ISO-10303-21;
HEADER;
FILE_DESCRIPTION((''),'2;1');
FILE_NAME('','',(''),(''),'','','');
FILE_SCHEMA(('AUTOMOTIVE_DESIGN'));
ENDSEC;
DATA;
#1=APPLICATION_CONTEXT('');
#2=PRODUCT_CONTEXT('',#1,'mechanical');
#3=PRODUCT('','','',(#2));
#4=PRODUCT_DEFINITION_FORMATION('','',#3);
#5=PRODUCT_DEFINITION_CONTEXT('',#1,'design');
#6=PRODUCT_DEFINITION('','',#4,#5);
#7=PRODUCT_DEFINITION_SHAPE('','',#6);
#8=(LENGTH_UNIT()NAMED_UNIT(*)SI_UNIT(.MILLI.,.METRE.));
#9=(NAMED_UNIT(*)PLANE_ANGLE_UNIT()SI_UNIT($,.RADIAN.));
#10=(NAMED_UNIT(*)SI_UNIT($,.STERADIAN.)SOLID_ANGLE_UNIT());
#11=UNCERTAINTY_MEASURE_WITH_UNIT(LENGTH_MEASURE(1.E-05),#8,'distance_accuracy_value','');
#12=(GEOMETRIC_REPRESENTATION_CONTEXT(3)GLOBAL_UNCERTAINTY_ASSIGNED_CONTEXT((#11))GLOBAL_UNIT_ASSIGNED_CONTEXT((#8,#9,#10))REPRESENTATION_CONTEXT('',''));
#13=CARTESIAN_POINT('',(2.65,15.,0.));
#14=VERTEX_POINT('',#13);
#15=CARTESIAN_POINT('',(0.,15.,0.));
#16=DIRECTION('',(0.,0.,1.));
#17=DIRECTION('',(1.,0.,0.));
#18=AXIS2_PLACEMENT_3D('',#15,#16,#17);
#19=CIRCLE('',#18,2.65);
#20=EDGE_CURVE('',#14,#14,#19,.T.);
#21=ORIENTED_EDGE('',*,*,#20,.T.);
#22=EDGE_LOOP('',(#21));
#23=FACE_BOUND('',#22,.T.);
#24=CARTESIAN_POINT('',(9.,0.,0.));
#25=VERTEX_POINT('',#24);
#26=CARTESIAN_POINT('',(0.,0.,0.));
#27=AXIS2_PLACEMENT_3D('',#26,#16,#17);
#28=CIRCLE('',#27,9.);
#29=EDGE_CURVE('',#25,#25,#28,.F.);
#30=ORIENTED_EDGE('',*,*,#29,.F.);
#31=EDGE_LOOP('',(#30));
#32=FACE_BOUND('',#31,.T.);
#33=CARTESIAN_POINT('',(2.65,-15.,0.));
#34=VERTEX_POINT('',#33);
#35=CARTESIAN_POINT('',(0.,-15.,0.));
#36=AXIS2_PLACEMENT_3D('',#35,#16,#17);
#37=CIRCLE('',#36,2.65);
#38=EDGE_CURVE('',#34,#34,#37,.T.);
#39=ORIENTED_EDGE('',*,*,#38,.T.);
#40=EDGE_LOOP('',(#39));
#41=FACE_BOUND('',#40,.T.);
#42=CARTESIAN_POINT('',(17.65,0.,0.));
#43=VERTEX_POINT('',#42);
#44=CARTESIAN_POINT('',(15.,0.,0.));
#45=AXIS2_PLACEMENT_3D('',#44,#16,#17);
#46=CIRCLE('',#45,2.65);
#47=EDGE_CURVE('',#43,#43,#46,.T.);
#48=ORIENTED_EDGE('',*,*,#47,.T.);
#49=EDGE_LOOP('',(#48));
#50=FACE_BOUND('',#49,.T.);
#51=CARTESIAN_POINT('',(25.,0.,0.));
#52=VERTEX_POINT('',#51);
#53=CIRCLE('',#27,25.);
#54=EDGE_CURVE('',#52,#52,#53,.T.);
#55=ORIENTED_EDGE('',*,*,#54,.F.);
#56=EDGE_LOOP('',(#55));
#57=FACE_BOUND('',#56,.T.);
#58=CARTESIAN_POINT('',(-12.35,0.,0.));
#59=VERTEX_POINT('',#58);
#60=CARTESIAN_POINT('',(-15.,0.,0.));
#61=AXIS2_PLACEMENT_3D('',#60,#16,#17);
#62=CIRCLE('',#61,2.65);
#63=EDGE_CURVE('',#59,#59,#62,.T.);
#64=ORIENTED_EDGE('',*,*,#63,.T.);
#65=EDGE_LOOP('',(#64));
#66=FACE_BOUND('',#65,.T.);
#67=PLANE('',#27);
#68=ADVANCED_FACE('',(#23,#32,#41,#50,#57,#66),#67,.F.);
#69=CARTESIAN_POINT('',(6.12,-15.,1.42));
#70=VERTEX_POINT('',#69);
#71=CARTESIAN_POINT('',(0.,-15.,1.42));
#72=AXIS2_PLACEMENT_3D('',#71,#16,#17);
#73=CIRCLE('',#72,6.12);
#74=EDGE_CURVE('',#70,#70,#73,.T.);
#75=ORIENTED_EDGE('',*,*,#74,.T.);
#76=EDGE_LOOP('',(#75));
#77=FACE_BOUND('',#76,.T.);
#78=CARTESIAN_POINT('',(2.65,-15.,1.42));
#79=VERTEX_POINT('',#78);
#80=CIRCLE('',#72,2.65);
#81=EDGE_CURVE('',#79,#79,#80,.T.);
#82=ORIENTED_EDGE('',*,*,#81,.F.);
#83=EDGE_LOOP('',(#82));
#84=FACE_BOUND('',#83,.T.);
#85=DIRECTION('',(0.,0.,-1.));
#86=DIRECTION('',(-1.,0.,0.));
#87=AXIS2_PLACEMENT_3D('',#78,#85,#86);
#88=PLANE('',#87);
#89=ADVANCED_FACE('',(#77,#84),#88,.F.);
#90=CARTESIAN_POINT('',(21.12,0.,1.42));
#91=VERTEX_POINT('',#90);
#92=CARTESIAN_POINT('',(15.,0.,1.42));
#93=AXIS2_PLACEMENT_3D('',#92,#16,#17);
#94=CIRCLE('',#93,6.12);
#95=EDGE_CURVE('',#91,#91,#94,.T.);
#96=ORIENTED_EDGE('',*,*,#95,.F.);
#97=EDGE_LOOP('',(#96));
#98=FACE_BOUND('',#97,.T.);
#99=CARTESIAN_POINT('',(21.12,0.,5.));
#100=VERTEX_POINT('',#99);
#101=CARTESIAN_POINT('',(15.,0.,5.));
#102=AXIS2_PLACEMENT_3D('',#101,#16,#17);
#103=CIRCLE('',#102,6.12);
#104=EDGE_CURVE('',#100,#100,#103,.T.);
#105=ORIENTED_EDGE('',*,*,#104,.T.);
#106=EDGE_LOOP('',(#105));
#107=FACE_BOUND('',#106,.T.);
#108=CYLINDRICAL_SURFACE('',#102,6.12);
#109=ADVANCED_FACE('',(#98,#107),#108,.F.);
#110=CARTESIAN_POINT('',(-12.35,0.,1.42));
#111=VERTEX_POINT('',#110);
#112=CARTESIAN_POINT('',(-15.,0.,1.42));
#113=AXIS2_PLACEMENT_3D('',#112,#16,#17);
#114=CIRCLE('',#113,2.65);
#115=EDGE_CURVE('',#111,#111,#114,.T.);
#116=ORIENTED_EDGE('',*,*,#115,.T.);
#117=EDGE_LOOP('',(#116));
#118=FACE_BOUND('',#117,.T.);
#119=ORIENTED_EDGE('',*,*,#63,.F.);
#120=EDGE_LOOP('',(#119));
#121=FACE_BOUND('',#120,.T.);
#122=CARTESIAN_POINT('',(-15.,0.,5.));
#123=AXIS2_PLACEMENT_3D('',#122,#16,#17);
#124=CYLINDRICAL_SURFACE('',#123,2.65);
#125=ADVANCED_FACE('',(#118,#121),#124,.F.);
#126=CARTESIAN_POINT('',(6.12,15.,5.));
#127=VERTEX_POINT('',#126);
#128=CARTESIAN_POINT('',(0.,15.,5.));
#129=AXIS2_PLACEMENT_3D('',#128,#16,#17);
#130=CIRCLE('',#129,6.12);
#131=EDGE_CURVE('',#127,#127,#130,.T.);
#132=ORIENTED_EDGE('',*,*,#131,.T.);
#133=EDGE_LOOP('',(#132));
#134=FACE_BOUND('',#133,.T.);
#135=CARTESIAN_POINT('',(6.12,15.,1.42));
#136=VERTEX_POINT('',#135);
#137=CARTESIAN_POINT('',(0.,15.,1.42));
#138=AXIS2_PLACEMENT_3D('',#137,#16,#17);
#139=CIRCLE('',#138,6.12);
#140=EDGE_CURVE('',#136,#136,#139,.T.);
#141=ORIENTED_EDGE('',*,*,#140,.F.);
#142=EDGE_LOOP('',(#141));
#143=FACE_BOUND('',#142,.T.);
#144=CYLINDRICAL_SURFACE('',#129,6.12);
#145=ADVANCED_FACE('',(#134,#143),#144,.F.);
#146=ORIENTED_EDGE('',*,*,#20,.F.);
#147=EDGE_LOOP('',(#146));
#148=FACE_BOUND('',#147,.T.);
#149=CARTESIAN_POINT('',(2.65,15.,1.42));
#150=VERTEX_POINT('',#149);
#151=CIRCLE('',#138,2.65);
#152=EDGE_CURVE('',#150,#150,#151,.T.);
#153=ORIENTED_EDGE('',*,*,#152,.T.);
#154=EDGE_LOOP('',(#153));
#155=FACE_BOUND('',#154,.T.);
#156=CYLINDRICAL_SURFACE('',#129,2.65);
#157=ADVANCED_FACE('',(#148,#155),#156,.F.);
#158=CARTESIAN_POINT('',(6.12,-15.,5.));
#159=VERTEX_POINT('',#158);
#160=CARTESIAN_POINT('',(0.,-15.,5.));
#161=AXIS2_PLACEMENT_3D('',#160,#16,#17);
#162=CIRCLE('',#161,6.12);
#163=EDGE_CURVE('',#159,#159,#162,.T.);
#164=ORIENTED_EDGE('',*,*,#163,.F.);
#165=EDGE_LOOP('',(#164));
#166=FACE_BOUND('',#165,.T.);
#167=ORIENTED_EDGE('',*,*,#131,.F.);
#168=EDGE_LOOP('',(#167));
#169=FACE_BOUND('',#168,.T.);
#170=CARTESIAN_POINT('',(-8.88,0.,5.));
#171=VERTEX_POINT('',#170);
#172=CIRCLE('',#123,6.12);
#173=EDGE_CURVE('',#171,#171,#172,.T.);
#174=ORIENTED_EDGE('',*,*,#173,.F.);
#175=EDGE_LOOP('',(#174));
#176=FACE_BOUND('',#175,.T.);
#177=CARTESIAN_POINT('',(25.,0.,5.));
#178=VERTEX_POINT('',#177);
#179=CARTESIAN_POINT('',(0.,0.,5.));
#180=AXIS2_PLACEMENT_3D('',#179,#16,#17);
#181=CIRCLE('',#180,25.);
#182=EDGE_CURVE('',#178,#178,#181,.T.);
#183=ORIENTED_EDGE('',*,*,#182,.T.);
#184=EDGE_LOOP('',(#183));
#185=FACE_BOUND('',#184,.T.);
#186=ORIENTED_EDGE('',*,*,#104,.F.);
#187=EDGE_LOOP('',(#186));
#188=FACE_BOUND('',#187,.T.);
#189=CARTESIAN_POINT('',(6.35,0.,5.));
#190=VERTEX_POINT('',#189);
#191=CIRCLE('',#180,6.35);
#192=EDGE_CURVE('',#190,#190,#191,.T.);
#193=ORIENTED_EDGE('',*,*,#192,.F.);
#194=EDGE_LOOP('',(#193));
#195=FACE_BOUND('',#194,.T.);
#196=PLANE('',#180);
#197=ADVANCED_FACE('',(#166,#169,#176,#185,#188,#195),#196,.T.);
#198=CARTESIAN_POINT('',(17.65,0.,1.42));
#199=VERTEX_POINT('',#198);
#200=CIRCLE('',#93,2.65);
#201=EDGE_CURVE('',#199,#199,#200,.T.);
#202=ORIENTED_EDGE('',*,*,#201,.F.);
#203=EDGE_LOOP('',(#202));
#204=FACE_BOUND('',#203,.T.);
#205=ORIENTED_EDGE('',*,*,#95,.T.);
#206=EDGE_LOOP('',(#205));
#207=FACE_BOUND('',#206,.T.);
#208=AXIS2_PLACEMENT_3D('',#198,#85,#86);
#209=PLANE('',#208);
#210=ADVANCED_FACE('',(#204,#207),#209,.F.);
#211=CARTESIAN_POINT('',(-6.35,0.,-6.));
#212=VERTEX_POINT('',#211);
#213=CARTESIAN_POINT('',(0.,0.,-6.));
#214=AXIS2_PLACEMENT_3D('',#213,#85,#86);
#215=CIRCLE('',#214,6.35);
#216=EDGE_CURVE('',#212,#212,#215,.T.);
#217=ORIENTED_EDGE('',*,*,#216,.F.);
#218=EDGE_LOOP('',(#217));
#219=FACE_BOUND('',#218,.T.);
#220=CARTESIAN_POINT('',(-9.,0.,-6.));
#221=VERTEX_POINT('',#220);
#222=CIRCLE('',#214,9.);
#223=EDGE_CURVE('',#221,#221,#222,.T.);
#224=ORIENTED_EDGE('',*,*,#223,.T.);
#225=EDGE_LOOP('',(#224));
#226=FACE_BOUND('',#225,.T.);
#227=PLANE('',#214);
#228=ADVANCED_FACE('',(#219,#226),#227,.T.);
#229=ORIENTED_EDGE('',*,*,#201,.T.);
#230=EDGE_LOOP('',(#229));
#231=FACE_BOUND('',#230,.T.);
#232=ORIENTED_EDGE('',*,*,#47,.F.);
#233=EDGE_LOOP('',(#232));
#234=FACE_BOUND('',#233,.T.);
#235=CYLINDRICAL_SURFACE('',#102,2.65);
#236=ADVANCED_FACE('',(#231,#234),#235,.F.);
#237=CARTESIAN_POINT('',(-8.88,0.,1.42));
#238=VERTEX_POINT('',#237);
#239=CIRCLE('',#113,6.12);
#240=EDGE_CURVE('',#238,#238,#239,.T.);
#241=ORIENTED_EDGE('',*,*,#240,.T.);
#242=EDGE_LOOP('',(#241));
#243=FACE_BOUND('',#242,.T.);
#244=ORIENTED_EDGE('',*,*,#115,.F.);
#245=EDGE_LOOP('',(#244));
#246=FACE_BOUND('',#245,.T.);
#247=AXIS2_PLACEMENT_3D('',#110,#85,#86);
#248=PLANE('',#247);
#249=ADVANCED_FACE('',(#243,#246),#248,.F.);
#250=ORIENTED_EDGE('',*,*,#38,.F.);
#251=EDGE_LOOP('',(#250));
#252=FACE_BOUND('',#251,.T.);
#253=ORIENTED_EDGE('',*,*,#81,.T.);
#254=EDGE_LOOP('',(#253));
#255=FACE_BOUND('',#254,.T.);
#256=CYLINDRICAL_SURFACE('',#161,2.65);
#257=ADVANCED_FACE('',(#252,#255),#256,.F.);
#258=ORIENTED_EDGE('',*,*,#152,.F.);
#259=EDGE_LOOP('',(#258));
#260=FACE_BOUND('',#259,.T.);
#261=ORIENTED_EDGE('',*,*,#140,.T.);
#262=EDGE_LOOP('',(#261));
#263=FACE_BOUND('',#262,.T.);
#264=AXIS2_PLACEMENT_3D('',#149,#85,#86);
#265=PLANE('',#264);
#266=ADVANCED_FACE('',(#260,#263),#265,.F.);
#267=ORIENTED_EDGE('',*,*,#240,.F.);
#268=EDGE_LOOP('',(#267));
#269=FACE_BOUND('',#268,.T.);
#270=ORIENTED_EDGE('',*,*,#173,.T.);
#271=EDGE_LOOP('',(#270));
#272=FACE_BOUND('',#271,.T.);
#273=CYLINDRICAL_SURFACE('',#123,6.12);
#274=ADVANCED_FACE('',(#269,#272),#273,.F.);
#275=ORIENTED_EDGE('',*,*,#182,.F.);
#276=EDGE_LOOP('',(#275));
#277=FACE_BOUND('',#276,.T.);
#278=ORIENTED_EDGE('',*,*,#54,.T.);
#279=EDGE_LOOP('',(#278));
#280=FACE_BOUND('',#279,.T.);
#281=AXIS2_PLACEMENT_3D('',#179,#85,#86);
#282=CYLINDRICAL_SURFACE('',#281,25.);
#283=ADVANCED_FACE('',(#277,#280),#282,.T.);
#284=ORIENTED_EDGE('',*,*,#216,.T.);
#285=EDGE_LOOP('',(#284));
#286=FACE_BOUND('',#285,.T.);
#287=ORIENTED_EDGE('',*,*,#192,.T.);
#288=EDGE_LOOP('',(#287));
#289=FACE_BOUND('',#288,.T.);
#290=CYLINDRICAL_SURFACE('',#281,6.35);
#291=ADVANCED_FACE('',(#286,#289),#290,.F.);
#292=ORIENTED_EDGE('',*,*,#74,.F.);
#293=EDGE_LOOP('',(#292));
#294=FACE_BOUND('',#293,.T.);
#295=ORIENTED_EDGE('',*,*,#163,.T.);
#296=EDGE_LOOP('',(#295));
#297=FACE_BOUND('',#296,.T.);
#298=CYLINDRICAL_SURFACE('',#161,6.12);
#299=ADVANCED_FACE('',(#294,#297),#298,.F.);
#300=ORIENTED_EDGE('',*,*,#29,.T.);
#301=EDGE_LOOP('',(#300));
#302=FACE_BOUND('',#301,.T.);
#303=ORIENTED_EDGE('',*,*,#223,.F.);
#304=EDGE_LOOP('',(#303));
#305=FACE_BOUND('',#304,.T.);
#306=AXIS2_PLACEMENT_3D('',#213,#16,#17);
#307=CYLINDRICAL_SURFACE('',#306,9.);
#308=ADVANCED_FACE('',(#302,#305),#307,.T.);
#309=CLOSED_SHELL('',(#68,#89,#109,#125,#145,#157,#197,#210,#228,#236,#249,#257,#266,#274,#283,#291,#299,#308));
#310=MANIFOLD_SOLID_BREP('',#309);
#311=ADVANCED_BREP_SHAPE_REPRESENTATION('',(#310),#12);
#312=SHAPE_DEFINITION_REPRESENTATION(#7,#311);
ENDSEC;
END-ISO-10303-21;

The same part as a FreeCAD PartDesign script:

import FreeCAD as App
import Part
import Sketcher

V = App.Vector

doc = App.newDocument("Part")
params = doc.addObject("Spreadsheet::Sheet", "Params")
for row, (alias, value) in enumerate([
    ("sketch1_diameter", "50 mm"),
    ("sketch1_diameter2", "12.7 mm"),
    ("pad1_length", "5 mm"),
    ("sketch2_diameter", "18 mm"),
    ("sketch2_diameter2", "12.7 mm"),
    ("pad2_length", "6 mm"),
    ("sketch3_diameter", "5.3 mm"),
    ("hole_diameter", "5.3 mm"),
    ("hole_depth", "19.75 mm"),
    ("hole_cbore_diameter", "12.24 mm"),
    ("hole_cbore_depth", "3.58 mm"),
], start=1):
    params.set(f"A{row}", alias)
    params.set(f"B{row}", "=" + value)
    params.setAlias(f"B{row}", alias)

body = doc.addObject("PartDesign::Body", "Body")

# Sketch on XY plane
sketch1 = doc.addObject("Sketcher::SketchObject", "Sketch")
body.addObject(sketch1)
sketch1.AttachmentSupport = (doc.XY_Plane, [""])
sketch1.MapMode = "FlatFace"
sketch1.addGeometry([
    Part.Circle(V(0, 0, 0), V(0, 0, 1), 25),
    Part.Circle(V(0, 0, 0), V(0, 0, 1), 6.35),
], False)
sketch1.addConstraint([
    Sketcher.Constraint("Coincident", 0, 3, -1, 1),
    Sketcher.Constraint("Coincident", 1, 3, -1, 1),
    Sketcher.Constraint("Diameter", 0, 50.0),
    Sketcher.Constraint("Diameter", 1, 12.7),
])
sketch1.setExpression("Constraints[2]", "Params.sketch1_diameter")
sketch1.setExpression("Constraints[3]", "Params.sketch1_diameter2")
pad1 = doc.addObject("PartDesign::Pad", "Pad")
body.addObject(pad1)
pad1.Profile = sketch1
pad1.setExpression("Length", "Params.pad1_length")

# Sketch on XY plane
sketch2 = doc.addObject("Sketcher::SketchObject", "Sketch001")
body.addObject(sketch2)
sketch2.AttachmentSupport = (doc.XY_Plane, [""])
sketch2.MapMode = "FlatFace"
sketch2.AttachmentOffset = App.Placement(V(0, 0, -6), App.Rotation())
sketch2.addGeometry([
    Part.Circle(V(0, 0, 0), V(0, 0, 1), 9),
    Part.Circle(V(0, 0, 0), V(0, 0, 1), 6.35),
], False)
sketch2.addConstraint([
    Sketcher.Constraint("Coincident", 0, 3, -1, 1),
    Sketcher.Constraint("Coincident", 1, 3, -1, 1),
    Sketcher.Constraint("Diameter", 0, 18.0),
    Sketcher.Constraint("Diameter", 1, 12.7),
])
sketch2.setExpression("Constraints[2]", "Params.sketch2_diameter")
sketch2.setExpression("Constraints[3]", "Params.sketch2_diameter2")
pad2 = doc.addObject("PartDesign::Pad", "Pad001")
body.addObject(pad2)
pad2.Profile = sketch2
pad2.setExpression("Length", "Params.pad2_length")

# Sketch on XY plane
sketch3 = doc.addObject("Sketcher::SketchObject", "Sketch002")
body.addObject(sketch3)
sketch3.AttachmentSupport = (doc.XY_Plane, [""])
sketch3.MapMode = "FlatFace"
sketch3.AttachmentOffset = App.Placement(V(0, 0, 5), App.Rotation())
sketch3.addGeometry([
    Part.Circle(V(0, 15, 0), V(0, 0, 1), 2.65),
    Part.Circle(V(15, 0, 0), V(0, 0, 1), 2.65),
    Part.Circle(V(0, -15, 0), V(0, 0, 1), 2.65),
    Part.Circle(V(-15, 0, 0), V(0, 0, 1), 2.65),
], False)
sketch3.addConstraint([
    Sketcher.Constraint("Equal", 0, 1),
    Sketcher.Constraint("Equal", 1, 2),
    Sketcher.Constraint("Equal", 2, 3),
    Sketcher.Constraint("Symmetric", 0, 3, 2, 3, -1, 1),
    Sketcher.Constraint("Symmetric", 1, 3, 3, 3, -1, 1),
    Sketcher.Constraint("PointOnObject", 0, 3, -2),
    Sketcher.Constraint("PointOnObject", 1, 3, -1),
    Sketcher.Constraint("Diameter", 0, 5.3),
    Sketcher.Constraint("DistanceY", -1, 1, 0, 3, 15.0),
    Sketcher.Constraint("DistanceX", -1, 1, 1, 3, 15.0),
])
sketch3.setExpression("Constraints[7]", "Params.sketch3_diameter")
doc.recompute()
hole = doc.addObject("PartDesign::Hole", "Hole")
body.addObject(hole)
hole.Profile = sketch3
hole.ThreadType = "None"
hole.setExpression("Diameter", "Params.hole_diameter")
hole.DepthType = "Dimension"
hole.setExpression("Depth", "Params.hole_depth")
hole.DrillPoint = "Angled"
hole.DrillPointAngle = 118
hole.HoleCutType = "Counterbore"
hole.setExpression("HoleCutDiameter", "Params.hole_cbore_diameter")
hole.setExpression("HoleCutDepth", "Params.hole_cbore_depth")

doc.recompute()
